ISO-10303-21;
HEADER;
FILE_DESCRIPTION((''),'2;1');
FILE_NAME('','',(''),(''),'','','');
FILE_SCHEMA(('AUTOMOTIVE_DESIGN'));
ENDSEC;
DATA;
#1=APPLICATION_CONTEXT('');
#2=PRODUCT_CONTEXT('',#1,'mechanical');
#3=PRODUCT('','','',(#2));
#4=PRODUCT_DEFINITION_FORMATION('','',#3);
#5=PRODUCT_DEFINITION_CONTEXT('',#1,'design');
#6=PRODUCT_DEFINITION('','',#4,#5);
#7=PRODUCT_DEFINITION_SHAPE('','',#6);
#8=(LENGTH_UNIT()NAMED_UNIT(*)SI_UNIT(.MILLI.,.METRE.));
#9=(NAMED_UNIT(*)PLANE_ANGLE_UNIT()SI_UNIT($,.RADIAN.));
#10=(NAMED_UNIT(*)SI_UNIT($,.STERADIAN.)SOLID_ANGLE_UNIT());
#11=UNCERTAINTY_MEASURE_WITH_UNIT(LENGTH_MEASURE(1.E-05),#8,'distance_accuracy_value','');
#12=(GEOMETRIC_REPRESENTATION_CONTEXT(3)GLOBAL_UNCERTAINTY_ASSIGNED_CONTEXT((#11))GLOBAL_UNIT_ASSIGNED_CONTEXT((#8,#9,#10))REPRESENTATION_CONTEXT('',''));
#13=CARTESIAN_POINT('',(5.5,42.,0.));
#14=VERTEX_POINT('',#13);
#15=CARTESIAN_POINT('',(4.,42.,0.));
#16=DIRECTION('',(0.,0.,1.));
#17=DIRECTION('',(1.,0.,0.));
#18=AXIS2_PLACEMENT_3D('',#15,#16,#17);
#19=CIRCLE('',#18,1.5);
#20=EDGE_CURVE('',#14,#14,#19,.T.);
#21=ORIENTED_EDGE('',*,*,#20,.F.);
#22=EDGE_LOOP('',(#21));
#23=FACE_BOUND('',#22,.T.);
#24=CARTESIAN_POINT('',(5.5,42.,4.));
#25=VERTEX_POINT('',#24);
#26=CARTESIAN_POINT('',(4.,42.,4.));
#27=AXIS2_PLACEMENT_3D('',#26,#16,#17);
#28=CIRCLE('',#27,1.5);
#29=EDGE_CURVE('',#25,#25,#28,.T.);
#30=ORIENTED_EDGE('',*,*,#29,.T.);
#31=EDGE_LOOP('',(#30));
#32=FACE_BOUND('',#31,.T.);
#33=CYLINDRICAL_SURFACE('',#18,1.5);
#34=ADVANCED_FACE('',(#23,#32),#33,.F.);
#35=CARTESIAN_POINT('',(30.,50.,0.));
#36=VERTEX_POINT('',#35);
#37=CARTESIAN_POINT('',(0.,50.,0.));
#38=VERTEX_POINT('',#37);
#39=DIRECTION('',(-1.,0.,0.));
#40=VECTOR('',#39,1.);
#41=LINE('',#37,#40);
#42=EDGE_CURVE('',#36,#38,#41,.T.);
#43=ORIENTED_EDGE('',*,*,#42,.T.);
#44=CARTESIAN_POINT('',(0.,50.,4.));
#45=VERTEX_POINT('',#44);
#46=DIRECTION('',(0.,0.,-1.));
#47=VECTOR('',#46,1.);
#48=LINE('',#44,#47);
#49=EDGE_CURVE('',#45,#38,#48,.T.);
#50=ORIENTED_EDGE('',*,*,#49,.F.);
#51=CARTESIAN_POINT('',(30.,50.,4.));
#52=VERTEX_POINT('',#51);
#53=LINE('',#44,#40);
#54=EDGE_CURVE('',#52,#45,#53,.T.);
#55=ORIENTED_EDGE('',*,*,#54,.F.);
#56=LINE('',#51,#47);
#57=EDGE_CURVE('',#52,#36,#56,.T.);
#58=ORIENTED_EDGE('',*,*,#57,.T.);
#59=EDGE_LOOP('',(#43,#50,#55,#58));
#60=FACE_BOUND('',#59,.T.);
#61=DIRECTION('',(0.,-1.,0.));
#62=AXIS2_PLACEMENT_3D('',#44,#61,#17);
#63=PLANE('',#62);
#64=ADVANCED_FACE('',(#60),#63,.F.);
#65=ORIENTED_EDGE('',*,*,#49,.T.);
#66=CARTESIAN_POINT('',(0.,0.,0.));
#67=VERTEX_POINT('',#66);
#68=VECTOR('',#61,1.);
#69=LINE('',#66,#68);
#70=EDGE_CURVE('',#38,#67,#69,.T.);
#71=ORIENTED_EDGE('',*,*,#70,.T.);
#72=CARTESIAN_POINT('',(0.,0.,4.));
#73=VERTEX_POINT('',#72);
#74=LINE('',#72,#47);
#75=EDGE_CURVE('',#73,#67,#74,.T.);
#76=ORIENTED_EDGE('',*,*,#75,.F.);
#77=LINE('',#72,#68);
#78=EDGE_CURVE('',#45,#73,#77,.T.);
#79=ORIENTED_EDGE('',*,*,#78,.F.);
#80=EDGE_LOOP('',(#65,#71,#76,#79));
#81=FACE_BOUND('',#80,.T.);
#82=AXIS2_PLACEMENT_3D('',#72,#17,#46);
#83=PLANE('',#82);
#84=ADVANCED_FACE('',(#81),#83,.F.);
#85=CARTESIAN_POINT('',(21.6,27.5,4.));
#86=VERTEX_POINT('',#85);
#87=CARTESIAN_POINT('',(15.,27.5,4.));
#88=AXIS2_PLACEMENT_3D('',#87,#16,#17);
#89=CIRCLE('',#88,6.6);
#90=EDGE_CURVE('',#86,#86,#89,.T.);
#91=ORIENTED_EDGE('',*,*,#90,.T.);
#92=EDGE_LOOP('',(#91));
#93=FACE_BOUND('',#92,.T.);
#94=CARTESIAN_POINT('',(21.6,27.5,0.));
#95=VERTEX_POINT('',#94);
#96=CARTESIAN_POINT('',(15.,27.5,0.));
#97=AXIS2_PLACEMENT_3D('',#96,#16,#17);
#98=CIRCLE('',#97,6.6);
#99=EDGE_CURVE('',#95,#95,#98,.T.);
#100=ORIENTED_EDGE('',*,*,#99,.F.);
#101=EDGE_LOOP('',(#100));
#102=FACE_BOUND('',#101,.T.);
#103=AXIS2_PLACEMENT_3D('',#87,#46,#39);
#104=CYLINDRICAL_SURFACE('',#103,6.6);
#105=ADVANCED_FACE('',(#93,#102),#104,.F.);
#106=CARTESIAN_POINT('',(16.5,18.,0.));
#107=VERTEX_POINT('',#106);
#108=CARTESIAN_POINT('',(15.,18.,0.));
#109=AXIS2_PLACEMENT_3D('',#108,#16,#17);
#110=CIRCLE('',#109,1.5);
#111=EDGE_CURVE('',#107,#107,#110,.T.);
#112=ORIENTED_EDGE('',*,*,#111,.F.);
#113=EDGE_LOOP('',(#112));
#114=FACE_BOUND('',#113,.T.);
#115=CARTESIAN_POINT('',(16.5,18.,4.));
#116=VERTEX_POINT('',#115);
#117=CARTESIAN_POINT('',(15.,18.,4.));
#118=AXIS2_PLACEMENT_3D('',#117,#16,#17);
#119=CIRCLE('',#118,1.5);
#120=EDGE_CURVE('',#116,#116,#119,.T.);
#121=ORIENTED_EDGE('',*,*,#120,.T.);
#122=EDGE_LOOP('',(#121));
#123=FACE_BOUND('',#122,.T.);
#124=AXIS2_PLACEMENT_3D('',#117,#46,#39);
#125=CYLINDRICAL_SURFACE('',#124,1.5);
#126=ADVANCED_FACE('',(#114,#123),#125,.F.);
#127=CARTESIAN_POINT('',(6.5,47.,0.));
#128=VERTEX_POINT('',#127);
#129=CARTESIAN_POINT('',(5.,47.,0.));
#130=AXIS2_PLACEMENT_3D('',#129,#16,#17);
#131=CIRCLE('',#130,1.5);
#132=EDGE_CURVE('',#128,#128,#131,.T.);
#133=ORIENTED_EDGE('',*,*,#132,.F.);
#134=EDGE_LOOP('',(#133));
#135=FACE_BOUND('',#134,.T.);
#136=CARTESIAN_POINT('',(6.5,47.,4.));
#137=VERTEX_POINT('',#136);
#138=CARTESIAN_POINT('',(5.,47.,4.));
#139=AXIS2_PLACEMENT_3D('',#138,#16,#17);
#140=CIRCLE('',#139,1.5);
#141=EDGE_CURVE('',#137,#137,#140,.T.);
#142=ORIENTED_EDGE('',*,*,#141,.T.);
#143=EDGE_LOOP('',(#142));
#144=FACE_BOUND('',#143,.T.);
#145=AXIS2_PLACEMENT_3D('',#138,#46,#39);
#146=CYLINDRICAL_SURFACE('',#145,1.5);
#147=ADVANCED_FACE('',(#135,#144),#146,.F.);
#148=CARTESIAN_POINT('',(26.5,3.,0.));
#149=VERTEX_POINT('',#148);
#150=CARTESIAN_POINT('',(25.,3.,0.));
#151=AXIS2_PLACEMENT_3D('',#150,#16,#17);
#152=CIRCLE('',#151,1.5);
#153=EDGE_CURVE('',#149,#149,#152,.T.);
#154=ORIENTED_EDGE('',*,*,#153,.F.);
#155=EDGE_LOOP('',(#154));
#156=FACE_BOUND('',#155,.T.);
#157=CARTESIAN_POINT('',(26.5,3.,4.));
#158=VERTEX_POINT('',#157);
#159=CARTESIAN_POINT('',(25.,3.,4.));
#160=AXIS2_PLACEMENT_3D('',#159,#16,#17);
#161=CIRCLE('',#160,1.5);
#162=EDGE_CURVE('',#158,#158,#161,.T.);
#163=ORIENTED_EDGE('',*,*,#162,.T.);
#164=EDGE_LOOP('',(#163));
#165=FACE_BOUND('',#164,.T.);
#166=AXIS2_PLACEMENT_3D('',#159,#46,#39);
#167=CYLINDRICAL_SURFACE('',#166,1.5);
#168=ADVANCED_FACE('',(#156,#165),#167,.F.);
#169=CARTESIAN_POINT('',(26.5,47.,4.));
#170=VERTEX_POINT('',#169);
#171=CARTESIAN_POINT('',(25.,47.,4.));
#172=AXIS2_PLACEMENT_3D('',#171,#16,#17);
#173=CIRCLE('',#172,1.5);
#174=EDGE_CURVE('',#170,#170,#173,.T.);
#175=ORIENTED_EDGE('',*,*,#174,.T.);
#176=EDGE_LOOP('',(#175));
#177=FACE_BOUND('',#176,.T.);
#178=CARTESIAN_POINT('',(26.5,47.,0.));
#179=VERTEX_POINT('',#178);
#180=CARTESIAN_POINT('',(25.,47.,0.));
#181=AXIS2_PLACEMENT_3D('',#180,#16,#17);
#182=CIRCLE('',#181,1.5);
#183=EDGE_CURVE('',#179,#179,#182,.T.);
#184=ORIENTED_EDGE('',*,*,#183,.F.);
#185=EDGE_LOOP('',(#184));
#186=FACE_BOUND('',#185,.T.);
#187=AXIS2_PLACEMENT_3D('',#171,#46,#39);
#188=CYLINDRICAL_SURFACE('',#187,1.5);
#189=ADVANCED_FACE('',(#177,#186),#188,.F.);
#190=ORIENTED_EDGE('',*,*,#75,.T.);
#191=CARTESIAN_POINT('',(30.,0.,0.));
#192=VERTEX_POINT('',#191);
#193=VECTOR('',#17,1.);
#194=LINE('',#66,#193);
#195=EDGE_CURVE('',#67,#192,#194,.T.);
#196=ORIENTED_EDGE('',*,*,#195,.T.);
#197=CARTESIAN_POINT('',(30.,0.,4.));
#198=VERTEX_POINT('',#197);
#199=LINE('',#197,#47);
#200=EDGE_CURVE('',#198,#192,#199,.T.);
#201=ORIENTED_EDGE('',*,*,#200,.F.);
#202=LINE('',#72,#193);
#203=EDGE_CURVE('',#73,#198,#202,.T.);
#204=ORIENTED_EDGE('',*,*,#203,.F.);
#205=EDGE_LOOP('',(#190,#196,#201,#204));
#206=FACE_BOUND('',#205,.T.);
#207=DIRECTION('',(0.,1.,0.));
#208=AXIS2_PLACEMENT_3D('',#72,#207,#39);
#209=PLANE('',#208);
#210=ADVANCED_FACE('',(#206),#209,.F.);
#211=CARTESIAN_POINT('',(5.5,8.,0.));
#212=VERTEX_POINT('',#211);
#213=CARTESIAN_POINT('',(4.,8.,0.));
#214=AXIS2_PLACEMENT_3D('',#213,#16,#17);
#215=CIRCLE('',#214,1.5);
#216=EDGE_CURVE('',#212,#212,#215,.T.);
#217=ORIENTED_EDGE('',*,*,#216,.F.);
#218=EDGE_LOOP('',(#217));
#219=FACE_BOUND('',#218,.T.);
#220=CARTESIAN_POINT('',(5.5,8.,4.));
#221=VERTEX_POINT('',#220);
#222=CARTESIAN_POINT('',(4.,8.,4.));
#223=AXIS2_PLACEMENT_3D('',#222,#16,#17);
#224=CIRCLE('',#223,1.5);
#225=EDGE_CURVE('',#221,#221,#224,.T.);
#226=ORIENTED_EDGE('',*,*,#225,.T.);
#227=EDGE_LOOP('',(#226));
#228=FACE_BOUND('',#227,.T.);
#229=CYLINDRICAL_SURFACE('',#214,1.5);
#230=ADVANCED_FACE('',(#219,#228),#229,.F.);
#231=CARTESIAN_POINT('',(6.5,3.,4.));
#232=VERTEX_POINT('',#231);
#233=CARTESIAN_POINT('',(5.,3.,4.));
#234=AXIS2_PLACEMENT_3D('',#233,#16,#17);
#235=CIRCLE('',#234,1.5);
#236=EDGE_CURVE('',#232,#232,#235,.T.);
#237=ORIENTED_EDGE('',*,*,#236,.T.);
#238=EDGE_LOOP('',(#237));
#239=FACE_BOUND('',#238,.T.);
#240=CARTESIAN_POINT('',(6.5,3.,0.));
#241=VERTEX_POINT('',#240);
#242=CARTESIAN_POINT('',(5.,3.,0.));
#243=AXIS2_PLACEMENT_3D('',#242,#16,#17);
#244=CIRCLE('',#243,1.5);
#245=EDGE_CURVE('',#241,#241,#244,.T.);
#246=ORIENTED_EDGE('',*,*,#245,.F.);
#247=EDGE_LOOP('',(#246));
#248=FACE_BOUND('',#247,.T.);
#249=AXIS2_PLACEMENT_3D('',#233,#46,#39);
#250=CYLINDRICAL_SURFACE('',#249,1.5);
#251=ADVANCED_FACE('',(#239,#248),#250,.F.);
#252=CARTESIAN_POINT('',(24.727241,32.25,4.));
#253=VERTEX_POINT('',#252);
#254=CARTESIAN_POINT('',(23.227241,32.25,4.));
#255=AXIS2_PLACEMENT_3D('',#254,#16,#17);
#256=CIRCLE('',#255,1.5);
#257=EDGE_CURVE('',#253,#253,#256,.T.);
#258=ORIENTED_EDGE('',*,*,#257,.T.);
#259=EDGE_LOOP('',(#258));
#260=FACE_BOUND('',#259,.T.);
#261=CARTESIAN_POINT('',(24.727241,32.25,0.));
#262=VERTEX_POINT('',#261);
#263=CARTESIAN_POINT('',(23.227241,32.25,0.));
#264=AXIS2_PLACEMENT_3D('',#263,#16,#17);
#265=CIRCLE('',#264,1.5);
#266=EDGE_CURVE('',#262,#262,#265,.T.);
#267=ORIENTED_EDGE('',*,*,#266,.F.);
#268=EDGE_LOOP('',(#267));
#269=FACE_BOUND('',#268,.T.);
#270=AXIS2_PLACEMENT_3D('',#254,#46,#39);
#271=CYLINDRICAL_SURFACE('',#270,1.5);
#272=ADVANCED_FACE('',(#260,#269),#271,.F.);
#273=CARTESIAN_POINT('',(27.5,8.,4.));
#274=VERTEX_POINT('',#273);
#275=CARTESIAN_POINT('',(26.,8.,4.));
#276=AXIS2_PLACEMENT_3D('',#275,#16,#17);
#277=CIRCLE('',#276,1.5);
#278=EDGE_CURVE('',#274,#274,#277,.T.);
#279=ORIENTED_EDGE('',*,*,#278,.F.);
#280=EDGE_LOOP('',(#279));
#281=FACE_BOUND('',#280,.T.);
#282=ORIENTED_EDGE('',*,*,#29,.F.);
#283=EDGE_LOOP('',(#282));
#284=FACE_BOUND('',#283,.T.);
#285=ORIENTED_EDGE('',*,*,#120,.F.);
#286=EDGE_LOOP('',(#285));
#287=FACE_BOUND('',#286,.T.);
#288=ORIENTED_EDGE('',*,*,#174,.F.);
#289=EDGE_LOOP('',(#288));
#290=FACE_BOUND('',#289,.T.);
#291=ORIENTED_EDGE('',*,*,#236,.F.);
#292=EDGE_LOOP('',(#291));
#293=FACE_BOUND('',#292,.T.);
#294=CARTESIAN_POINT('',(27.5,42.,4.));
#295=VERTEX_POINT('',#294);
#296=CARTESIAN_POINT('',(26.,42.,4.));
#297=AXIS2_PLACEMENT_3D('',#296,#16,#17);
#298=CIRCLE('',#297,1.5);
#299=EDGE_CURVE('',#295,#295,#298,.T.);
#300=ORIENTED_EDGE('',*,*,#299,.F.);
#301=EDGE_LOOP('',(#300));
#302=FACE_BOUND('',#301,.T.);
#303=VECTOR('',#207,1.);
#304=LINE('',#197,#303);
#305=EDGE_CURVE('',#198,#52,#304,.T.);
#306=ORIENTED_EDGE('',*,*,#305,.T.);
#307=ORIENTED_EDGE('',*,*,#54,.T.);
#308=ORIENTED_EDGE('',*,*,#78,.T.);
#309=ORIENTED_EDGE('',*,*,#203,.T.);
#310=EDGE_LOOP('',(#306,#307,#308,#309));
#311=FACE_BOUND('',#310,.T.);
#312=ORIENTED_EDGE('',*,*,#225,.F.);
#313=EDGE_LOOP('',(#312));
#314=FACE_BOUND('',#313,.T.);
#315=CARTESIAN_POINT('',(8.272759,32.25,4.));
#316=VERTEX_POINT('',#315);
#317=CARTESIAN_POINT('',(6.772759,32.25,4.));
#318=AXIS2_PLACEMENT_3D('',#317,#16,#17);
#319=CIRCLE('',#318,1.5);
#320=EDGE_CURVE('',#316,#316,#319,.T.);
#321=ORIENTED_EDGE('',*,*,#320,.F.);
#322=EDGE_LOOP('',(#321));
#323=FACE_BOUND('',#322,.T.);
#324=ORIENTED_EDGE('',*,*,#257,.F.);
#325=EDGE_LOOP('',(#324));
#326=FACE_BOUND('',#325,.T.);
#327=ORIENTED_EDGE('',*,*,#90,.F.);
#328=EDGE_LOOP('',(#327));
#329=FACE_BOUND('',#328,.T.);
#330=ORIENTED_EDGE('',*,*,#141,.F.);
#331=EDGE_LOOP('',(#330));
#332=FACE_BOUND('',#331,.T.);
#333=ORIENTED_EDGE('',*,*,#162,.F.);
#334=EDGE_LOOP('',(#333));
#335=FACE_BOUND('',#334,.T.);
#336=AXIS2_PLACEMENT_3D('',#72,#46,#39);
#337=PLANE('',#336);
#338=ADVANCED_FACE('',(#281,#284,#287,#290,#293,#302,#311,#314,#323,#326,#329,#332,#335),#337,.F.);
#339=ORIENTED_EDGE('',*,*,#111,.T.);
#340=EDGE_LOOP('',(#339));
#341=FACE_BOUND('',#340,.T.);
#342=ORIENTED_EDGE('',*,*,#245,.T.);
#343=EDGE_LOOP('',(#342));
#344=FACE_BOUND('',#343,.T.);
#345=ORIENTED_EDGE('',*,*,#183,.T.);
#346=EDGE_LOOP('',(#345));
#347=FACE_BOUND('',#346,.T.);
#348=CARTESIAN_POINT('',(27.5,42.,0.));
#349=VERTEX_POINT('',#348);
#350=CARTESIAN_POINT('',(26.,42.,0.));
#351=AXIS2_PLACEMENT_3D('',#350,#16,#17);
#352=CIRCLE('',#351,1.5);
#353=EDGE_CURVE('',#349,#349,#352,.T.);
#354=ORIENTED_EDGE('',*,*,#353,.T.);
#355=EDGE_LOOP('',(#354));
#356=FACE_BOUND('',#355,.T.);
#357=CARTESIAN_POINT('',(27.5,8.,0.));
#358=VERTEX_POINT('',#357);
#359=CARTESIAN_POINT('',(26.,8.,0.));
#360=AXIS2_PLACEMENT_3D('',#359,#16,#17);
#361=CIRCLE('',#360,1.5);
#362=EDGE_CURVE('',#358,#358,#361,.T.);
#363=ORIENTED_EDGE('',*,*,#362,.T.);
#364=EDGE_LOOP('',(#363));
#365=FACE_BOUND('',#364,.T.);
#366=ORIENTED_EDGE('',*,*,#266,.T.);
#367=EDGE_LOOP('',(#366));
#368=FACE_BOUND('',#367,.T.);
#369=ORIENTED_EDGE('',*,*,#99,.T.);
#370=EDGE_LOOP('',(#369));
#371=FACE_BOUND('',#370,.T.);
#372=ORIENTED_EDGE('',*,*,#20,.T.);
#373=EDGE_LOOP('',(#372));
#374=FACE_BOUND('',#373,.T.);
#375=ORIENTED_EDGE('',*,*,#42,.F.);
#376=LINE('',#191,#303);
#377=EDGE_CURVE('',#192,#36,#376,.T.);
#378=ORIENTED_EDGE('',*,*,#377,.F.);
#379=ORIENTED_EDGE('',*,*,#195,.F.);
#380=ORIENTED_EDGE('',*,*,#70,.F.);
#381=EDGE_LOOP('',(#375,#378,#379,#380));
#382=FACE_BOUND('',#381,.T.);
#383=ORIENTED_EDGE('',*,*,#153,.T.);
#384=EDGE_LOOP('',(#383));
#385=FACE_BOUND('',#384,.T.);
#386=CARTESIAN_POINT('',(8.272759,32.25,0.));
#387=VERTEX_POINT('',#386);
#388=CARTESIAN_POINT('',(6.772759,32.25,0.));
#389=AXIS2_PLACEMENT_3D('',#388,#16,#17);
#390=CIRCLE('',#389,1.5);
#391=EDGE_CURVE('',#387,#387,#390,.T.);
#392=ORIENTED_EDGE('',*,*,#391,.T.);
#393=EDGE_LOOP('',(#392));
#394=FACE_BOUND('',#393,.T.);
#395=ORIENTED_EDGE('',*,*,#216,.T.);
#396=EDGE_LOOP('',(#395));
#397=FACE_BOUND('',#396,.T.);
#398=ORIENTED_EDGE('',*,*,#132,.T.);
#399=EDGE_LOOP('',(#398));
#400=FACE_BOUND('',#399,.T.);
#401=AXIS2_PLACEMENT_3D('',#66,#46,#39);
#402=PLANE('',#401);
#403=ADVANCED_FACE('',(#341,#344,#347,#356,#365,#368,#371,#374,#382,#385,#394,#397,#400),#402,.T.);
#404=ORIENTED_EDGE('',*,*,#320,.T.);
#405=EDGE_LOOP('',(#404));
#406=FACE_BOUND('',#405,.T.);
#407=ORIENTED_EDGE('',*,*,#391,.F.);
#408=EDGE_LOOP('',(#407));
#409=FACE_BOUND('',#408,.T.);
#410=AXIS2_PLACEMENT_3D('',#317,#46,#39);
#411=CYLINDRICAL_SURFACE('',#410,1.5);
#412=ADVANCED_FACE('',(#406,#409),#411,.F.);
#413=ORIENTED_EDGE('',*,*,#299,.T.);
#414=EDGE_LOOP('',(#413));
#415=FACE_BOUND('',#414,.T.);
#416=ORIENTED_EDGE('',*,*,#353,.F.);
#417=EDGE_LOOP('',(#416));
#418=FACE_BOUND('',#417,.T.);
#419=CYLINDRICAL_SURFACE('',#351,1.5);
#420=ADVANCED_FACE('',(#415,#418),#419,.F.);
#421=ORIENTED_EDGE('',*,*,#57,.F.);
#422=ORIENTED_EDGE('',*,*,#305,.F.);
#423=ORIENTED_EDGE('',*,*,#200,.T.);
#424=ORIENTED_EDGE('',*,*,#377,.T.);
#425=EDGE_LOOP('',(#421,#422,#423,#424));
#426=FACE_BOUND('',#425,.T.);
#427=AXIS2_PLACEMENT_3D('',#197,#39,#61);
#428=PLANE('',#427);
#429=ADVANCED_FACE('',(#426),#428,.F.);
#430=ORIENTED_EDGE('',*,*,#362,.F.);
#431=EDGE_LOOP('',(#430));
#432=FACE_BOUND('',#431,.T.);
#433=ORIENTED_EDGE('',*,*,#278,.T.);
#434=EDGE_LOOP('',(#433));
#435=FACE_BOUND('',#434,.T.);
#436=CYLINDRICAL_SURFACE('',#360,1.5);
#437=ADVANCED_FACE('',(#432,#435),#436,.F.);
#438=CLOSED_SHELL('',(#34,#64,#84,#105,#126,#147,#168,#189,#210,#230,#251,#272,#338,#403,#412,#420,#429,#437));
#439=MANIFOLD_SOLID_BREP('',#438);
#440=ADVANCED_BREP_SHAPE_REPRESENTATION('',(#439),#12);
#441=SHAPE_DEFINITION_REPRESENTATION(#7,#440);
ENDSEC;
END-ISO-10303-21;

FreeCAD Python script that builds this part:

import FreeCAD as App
import Part
import Sketcher
from FreeCAD import Vector
Q = App.Units.Quantity


def add_polygon(sketch, points):
    """Adds a closed chain of lines whose ends are joined by coincident constraints."""
    first, n = sketch.GeometryCount, len(points)
    for a, b in zip(points, points[1:] + points[:1]):
        sketch.addGeometry(Part.LineSegment(App.Vector(*a, 0), App.Vector(*b, 0)), False)
    for i in range(n):
        sketch.addConstraint(Sketcher.Constraint("Coincident", first + i, 2, first + (i + 1) % n, 1))

doc = App.newDocument("Part")
body = doc.addObject("PartDesign::Body", "Body")

# Sketch on XY plane
sketch1 = body.newObject("Sketcher::SketchObject", "Sketch")
sketch1.AttachmentSupport = (doc.getObject("XY_Plane"), [""])
sketch1.MapMode = "FlatFace"
add_polygon(sketch1, [(0, 50), (0, 0), (30, 0), (30, 50)])  # lines 0-3
sketch1.addGeometry(Part.Circle(Vector(5, 3, 0), Vector(0, 0, 1), 1.5), False)  # 4
sketch1.addGeometry(Part.Circle(Vector(25, 3, 0), Vector(0, 0, 1), 1.5), False)  # 5
sketch1.addGeometry(Part.Circle(Vector(15, 18, 0), Vector(0, 0, 1), 1.5), False)  # 6
sketch1.addGeometry(Part.Circle(Vector(6.8, 32.2, 0), Vector(0, 0, 1), 1.5), False)  # 7
sketch1.addGeometry(Part.Circle(Vector(5, 47, 0), Vector(0, 0, 1), 1.5), False)  # 8
sketch1.addGeometry(Part.Circle(Vector(15, 27.5, 0), Vector(0, 0, 1), 6.6), False)  # 9
sketch1.addGeometry(Part.Circle(Vector(23.2, 32.2, 0), Vector(0, 0, 1), 1.5), False)  # 10
sketch1.addGeometry(Part.Circle(Vector(25, 47, 0), Vector(0, 0, 1), 1.5), False)  # 11
sketch1.addConstraint(Sketcher.Constraint("Vertical", 0))
sketch1.addConstraint(Sketcher.Constraint("Horizontal", 1))
sketch1.addConstraint(Sketcher.Constraint("Vertical", 2))
sketch1.addConstraint(Sketcher.Constraint("Horizontal", 3))
sketch1.addConstraint(Sketcher.Constraint("Coincident", 0, 2, -1, 1))
sketch1.addConstraint(Sketcher.Constraint("Equal", 4, 5))
sketch1.addConstraint(Sketcher.Constraint("Equal", 5, 6))
sketch1.addConstraint(Sketcher.Constraint("Equal", 6, 7))
sketch1.addConstraint(Sketcher.Constraint("Equal", 7, 8))
sketch1.addConstraint(Sketcher.Constraint("Equal", 8, 10))
sketch1.addConstraint(Sketcher.Constraint("Equal", 10, 11))
sketch1.addConstraint(Sketcher.Constraint("Horizontal", 4, 3, 5, 3))
sketch1.addConstraint(Sketcher.Constraint("Horizontal", 7, 3, 10, 3))
sketch1.addConstraint(Sketcher.Constraint("Horizontal", 8, 3, 11, 3))
sketch1.addConstraint(Sketcher.Constraint("Vertical", 4, 3, 8, 3))
sketch1.addConstraint(Sketcher.Constraint("Vertical", 6, 3, 9, 3))
sketch1.addConstraint(Sketcher.Constraint("Vertical", 5, 3, 11, 3))
sketch1.addConstraint(Sketcher.Constraint("Diameter", 4, Q("3 mm")))
sketch1.addConstraint(Sketcher.Constraint("Diameter", 9, Q("13.2 mm")))
sketch1.addConstraint(Sketcher.Constraint("DistanceX", 1, 1, 1, 2, Q("30 mm")))
sketch1.addConstraint(Sketcher.Constraint("DistanceY", 0, 2, 0, 1, Q("50 mm")))
sketch1.addConstraint(Sketcher.Constraint("DistanceX", -1, 1, 4, 3, Q("5 mm")))
sketch1.addConstraint(Sketcher.Constraint("DistanceY", -1, 1, 4, 3, Q("3 mm")))
sketch1.addConstraint(Sketcher.Constraint("DistanceX", -1, 1, 5, 3, Q("25 mm")))
sketch1.addConstraint(Sketcher.Constraint("DistanceX", -1, 1, 6, 3, Q("15 mm")))
sketch1.addConstraint(Sketcher.Constraint("DistanceY", -1, 1, 6, 3, Q("18 mm")))
sketch1.addConstraint(Sketcher.Constraint("DistanceY", -1, 1, 8, 3, Q("47 mm")))
sketch1.addConstraint(Sketcher.Constraint("DistanceY", -1, 1, 9, 3, Q("27.5 mm")))
sketch1.addConstraint(Sketcher.Constraint("DistanceY", -1, 1, 7, 3, Q("32.25 mm")))
sketch1.addConstraint(Sketcher.Constraint("DistanceX", -1, 1, 7, 3, Q("6.772759 mm")))
sketch1.addConstraint(Sketcher.Constraint("DistanceX", -1, 1, 10, 3, Q("23.227241 mm")))
pad1 = body.newObject("PartDesign::Pad", "Pad")
pad1.Profile = sketch1
pad1.Length = 4

# Sketch on XY plane
sketch2 = body.newObject("Sketcher::SketchObject", "Sketch001")
sketch2.AttachmentSupport = (doc.getObject("XY_Plane"), [""])
sketch2.MapMode = "FlatFace"
sketch2.AttachmentOffset = App.Placement(Vector(0, 0, 4), App.Rotation())
sketch2.addGeometry(Part.Circle(Vector(4, 42, 0), Vector(0, 0, 1), 1.5), False)
sketch2.addGeometry(Part.Circle(Vector(26, 42, 0), Vector(0, 0, 1), 1.5), False)
sketch2.addGeometry(Part.Circle(Vector(26, 8, 0), Vector(0, 0, 1), 1.5), False)
sketch2.addGeometry(Part.Circle(Vector(4, 8, 0), Vector(0, 0, 1), 1.5), False)
sketch2.addConstraint(Sketcher.Constraint("Equal", 0, 1))
sketch2.addConstraint(Sketcher.Constraint("Equal", 1, 2))
sketch2.addConstraint(Sketcher.Constraint("Equal", 2, 3))
sketch2.addConstraint(Sketcher.Constraint("Horizontal", 0, 3, 1, 3))
sketch2.addConstraint(Sketcher.Constraint("Horizontal", 2, 3, 3, 3))
sketch2.addConstraint(Sketcher.Constraint("Vertical", 1, 3, 2, 3))
sketch2.addConstraint(Sketcher.Constraint("Vertical", 0, 3, 3, 3))
sketch2.addConstraint(Sketcher.Constraint("Diameter", 0, Q("3 mm")))
sketch2.addConstraint(Sketcher.Constraint("DistanceX", -1, 1, 0, 3, Q("4 mm")))
sketch2.addConstraint(Sketcher.Constraint("DistanceY", -1, 1, 0, 3, Q("42 mm")))
sketch2.addConstraint(Sketcher.Constraint("DistanceX", -1, 1, 1, 3, Q("26 mm")))
sketch2.addConstraint(Sketcher.Constraint("DistanceY", -1, 1, 2, 3, Q("8 mm")))
pocket1 = body.newObject("PartDesign::Pocket", "Pocket")
pocket1.Profile = sketch2
pocket1.Type = "ThroughAll"

doc.recompute()
